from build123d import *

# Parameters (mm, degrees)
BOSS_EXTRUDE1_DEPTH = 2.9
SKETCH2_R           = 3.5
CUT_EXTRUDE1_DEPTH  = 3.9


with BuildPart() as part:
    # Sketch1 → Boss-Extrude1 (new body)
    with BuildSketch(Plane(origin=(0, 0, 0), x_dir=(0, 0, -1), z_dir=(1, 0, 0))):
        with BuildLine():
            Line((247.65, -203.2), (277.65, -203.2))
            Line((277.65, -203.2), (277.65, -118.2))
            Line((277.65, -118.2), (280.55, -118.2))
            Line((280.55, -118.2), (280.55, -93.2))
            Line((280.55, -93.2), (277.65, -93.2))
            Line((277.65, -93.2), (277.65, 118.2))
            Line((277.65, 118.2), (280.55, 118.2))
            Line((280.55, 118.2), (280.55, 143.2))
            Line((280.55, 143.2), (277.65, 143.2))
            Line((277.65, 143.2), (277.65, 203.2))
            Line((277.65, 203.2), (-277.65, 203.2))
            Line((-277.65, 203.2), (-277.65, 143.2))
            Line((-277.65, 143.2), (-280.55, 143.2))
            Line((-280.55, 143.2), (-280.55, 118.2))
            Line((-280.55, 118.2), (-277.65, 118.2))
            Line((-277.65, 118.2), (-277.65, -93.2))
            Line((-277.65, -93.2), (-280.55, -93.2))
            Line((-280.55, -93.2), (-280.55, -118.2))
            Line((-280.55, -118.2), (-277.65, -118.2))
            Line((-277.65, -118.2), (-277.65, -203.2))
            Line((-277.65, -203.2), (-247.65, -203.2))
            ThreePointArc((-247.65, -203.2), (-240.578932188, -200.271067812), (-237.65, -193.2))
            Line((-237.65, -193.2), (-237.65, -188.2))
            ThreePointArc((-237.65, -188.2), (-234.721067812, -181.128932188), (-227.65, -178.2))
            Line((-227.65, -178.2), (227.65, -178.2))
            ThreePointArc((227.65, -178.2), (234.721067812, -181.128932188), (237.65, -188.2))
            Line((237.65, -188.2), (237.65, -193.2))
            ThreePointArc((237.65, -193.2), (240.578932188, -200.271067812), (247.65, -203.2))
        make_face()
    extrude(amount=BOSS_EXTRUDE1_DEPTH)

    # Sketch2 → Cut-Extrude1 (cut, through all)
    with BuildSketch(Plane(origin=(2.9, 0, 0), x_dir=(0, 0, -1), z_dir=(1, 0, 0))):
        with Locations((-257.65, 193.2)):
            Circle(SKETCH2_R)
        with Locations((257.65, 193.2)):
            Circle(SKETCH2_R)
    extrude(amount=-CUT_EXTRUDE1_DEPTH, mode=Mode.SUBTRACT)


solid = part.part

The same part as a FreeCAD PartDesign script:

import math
import FreeCAD as App
import Part
import Sketcher
Q = App.Units.Quantity

doc = App.newDocument("Part")
body = doc.addObject("PartDesign::Body", "Body")

# Sketch on YZ plane
sketch1 = body.newObject("Sketcher::SketchObject", "Sketch")
sketch1.AttachmentSupport = (doc.getObject("YZ_Plane"), [""])
sketch1.MapMode = "FlatFace"
sketch1.addGeometry([
    Part.LineSegment(App.Vector(-203.2, -247.7, 0), App.Vector(-203.2, -277.6, 0)),  # 0
    Part.LineSegment(App.Vector(-203.2, -277.6, 0), App.Vector(-118.2, -277.6, 0)),  # 1
    Part.LineSegment(App.Vector(-118.2, -277.6, 0), App.Vector(-118.2, -280.6, 0)),  # 2
    Part.LineSegment(App.Vector(-118.2, -280.6, 0), App.Vector(-93.2, -280.6, 0)),  # 3
    Part.LineSegment(App.Vector(-93.2, -280.6, 0), App.Vector(-93.2, -277.6, 0)),  # 4
    Part.LineSegment(App.Vector(-93.2, -277.6, 0), App.Vector(118.2, -277.6, 0)),  # 5
    Part.LineSegment(App.Vector(118.2, -277.6, 0), App.Vector(118.2, -280.6, 0)),  # 6
    Part.LineSegment(App.Vector(118.2, -280.6, 0), App.Vector(143.2, -280.6, 0)),  # 7
    Part.LineSegment(App.Vector(143.2, -280.6, 0), App.Vector(143.2, -277.6, 0)),  # 8
    Part.LineSegment(App.Vector(143.2, -277.6, 0), App.Vector(203.2, -277.6, 0)),  # 9
    Part.LineSegment(App.Vector(203.2, -277.6, 0), App.Vector(203.2, 277.6, 0)),  # 10
    Part.LineSegment(App.Vector(203.2, 277.6, 0), App.Vector(143.2, 277.6, 0)),  # 11
    Part.LineSegment(App.Vector(143.2, 277.6, 0), App.Vector(143.2, 280.6, 0)),  # 12
    Part.LineSegment(App.Vector(143.2, 280.6, 0), App.Vector(118.2, 280.6, 0)),  # 13
    Part.LineSegment(App.Vector(118.2, 280.6, 0), App.Vector(118.2, 277.6, 0)),  # 14
    Part.LineSegment(App.Vector(118.2, 277.6, 0), App.Vector(-93.2, 277.6, 0)),  # 15
    Part.LineSegment(App.Vector(-93.2, 277.6, 0), App.Vector(-93.2, 280.6, 0)),  # 16
    Part.LineSegment(App.Vector(-93.2, 280.6, 0), App.Vector(-118.2, 280.6, 0)),  # 17
    Part.LineSegment(App.Vector(-118.2, 280.6, 0), App.Vector(-118.2, 277.6, 0)),  # 18
    Part.LineSegment(App.Vector(-118.2, 277.6, 0), App.Vector(-203.2, 277.6, 0)),  # 19
    Part.LineSegment(App.Vector(-203.2, 277.6, 0), App.Vector(-203.2, 247.7, 0)),  # 20
    Part.ArcOfCircle(Part.Circle(App.Vector(-193.2, 247.7, 0), App.Vector(0, 0, 1), 10), math.radians(180), math.radians(270)),  # 21
    Part.LineSegment(App.Vector(-193.2, 237.7, 0), App.Vector(-188.2, 237.7, 0)),  # 22
    Part.ArcOfCircle(Part.Circle(App.Vector(-188.2, 227.7, 0), App.Vector(0, 0, 1), 10), math.radians(0), math.radians(90)),  # 23
    Part.LineSegment(App.Vector(-178.2, 227.7, 0), App.Vector(-178.2, -227.7, 0)),  # 24
    Part.ArcOfCircle(Part.Circle(App.Vector(-188.2, -227.7, 0), App.Vector(0, 0, 1), 10), math.radians(-90), math.radians(0)),  # 25
    Part.LineSegment(App.Vector(-188.2, -237.7, 0), App.Vector(-193.2, -237.7, 0)),  # 26
    Part.ArcOfCircle(Part.Circle(App.Vector(-193.2, -247.7, 0), App.Vector(0, 0, 1), 10), math.radians(90), math.radians(180)),  # 27
], False)
sketch1.addConstraint([
    Sketcher.Constraint("Coincident", 0, 2, 1, 1),
    Sketcher.Constraint("Coincident", 1, 2, 2, 1),
    Sketcher.Constraint("Coincident", 2, 2, 3, 1),
    Sketcher.Constraint("Coincident", 3, 2, 4, 1),
    Sketcher.Constraint("Coincident", 4, 2, 5, 1),
    Sketcher.Constraint("Coincident", 5, 2, 6, 1),
    Sketcher.Constraint("Coincident", 6, 2, 7, 1),
    Sketcher.Constraint("Coincident", 7, 2, 8, 1),
    Sketcher.Constraint("Coincident", 8, 2, 9, 1),
    Sketcher.Constraint("Coincident", 9, 2, 10, 1),
    Sketcher.Constraint("Coincident", 10, 2, 11, 1),
    Sketcher.Constraint("Coincident", 11, 2, 12, 1),
    Sketcher.Constraint("Coincident", 12, 2, 13, 1),
    Sketcher.Constraint("Coincident", 13, 2, 14, 1),
    Sketcher.Constraint("Coincident", 14, 2, 15, 1),
    Sketcher.Constraint("Coincident", 15, 2, 16, 1),
    Sketcher.Constraint("Coincident", 16, 2, 17, 1),
    Sketcher.Constraint("Coincident", 17, 2, 18, 1),
    Sketcher.Constraint("Coincident", 18, 2, 19, 1),
    Sketcher.Constraint("Coincident", 19, 2, 20, 1),
    Sketcher.Constraint("Tangent", 20, 2, 21, 1),
    Sketcher.Constraint("Tangent", 21, 2, 22, 1),
    Sketcher.Constraint("Tangent", 22, 2, 23, 2),
    Sketcher.Constraint("Tangent", 23, 1, 24, 1),
    Sketcher.Constraint("Tangent", 24, 2, 25, 2),
    Sketcher.Constraint("Tangent", 25, 1, 26, 1),
    Sketcher.Constraint("Tangent", 26, 2, 27, 1),
    Sketcher.Constraint("Tangent", 27, 2, 0, 1),
    Sketcher.Constraint("Vertical", 0),
    Sketcher.Constraint("Horizontal", 1),
    Sketcher.Constraint("Vertical", 2),
    Sketcher.Constraint("Horizontal", 3),
    Sketcher.Constraint("Vertical", 4),
    Sketcher.Constraint("Horizontal", 5),
    Sketcher.Constraint("Vertical", 6),
    Sketcher.Constraint("Horizontal", 7),
    Sketcher.Constraint("Vertical", 8),
    Sketcher.Constraint("Horizontal", 9),
    Sketcher.Constraint("Vertical", 10),
    Sketcher.Constraint("Horizontal", 11),
    Sketcher.Constraint("Vertical", 12),
    Sketcher.Constraint("Horizontal", 13),
    Sketcher.Constraint("Vertical", 14),
    Sketcher.Constraint("Horizontal", 15),
    Sketcher.Constraint("Vertical", 16),
    Sketcher.Constraint("Horizontal", 17),
    Sketcher.Constraint("Vertical", 18),
    Sketcher.Constraint("Horizontal", 19),
    Sketcher.Constraint("Vertical", 20),
    Sketcher.Constraint("Horizontal", 22),
    Sketcher.Constraint("Vertical", 24),
    Sketcher.Constraint("Horizontal", 26),
    Sketcher.Constraint("Equal", 21, 23),
    Sketcher.Constraint("Equal", 23, 25),
    Sketcher.Constraint("Equal", 25, 27),
    Sketcher.Constraint("Symmetric", 0, 2, 10, 2, -1, 1),
    Sketcher.Constraint("Symmetric", 2, 2, 13, 2, -1, 1),
    Sketcher.Constraint("Symmetric", 6, 2, 17, 2, -1, 1),
    Sketcher.Constraint("Symmetric", 9, 2, 19, 2, -1, 1),
    Sketcher.Constraint("Symmetric", 1, 2, 5, 2, -2),
    Sketcher.Constraint("Symmetric", 8, 2, 11, 2, -1),
    Sketcher.Constraint("Symmetric", 4, 2, 15, 2, -1),
    Sketcher.Constraint("Horizontal", 3, 2, 6, 2),
    Sketcher.Constraint("Equal", 3, 7),
    Sketcher.Constraint("Equal", 0, 20),
    Sketcher.Constraint("Radius", 21, Q("10 mm")),
    Sketcher.Constraint("DistanceX", 1, 1, 1, 2, Q("85 mm")),
    Sketcher.Constraint("DistanceX", 3, 1, 3, 2, Q("25 mm")),
    Sketcher.Constraint("DistanceX", 22, 1, 22, 2, Q("5 mm")),
    Sketcher.Constraint("DistanceY", 0, 2, 0, 1, Q("30 mm")),
    Sketcher.Constraint("DistanceX", 5, 1, 5, 2, Q("211.4 mm")),
    Sketcher.Constraint("DistanceY", 2, 2, 2, 1, Q("2.9 mm")),
    Sketcher.Constraint("DistanceY", 10, 1, 10, 2, Q("555.3 mm")),
])
pad1 = body.newObject("PartDesign::Pad", "Pad")
pad1.Profile = sketch1
pad1.Length = 2.9

# Sketch on YZ plane
sketch2 = body.newObject("Sketcher::SketchObject", "Sketch001")
sketch2.AttachmentSupport = (doc.getObject("YZ_Plane"), [""])
sketch2.MapMode = "FlatFace"
sketch2.AttachmentOffset = App.Placement(App.Vector(0, 0, 2.9), App.Rotation())
sketch2.addGeometry([
    Part.Circle(App.Vector(193.2, 257.6, 0), App.Vector(0, 0, 1), 3.5),
    Part.Circle(App.Vector(193.2, -257.6, 0), App.Vector(0, 0, 1), 3.5),
], False)
sketch2.addConstraint([
    Sketcher.Constraint("Equal", 0, 1),
    Sketcher.Constraint("Symmetric", 0, 3, 1, 3, -1),
    Sketcher.Constraint("Diameter", 0, Q("7 mm")),
    Sketcher.Constraint("DistanceX", -1, 1, 0, 3, Q("193.2 mm")),
    Sketcher.Constraint("DistanceY", 1, 3, 0, 3, Q("515.3 mm")),
])
pocket1 = body.newObject("PartDesign::Pocket", "Pocket")
pocket1.Profile = sketch2
pocket1.Type = "ThroughAll"

doc.recompute()
